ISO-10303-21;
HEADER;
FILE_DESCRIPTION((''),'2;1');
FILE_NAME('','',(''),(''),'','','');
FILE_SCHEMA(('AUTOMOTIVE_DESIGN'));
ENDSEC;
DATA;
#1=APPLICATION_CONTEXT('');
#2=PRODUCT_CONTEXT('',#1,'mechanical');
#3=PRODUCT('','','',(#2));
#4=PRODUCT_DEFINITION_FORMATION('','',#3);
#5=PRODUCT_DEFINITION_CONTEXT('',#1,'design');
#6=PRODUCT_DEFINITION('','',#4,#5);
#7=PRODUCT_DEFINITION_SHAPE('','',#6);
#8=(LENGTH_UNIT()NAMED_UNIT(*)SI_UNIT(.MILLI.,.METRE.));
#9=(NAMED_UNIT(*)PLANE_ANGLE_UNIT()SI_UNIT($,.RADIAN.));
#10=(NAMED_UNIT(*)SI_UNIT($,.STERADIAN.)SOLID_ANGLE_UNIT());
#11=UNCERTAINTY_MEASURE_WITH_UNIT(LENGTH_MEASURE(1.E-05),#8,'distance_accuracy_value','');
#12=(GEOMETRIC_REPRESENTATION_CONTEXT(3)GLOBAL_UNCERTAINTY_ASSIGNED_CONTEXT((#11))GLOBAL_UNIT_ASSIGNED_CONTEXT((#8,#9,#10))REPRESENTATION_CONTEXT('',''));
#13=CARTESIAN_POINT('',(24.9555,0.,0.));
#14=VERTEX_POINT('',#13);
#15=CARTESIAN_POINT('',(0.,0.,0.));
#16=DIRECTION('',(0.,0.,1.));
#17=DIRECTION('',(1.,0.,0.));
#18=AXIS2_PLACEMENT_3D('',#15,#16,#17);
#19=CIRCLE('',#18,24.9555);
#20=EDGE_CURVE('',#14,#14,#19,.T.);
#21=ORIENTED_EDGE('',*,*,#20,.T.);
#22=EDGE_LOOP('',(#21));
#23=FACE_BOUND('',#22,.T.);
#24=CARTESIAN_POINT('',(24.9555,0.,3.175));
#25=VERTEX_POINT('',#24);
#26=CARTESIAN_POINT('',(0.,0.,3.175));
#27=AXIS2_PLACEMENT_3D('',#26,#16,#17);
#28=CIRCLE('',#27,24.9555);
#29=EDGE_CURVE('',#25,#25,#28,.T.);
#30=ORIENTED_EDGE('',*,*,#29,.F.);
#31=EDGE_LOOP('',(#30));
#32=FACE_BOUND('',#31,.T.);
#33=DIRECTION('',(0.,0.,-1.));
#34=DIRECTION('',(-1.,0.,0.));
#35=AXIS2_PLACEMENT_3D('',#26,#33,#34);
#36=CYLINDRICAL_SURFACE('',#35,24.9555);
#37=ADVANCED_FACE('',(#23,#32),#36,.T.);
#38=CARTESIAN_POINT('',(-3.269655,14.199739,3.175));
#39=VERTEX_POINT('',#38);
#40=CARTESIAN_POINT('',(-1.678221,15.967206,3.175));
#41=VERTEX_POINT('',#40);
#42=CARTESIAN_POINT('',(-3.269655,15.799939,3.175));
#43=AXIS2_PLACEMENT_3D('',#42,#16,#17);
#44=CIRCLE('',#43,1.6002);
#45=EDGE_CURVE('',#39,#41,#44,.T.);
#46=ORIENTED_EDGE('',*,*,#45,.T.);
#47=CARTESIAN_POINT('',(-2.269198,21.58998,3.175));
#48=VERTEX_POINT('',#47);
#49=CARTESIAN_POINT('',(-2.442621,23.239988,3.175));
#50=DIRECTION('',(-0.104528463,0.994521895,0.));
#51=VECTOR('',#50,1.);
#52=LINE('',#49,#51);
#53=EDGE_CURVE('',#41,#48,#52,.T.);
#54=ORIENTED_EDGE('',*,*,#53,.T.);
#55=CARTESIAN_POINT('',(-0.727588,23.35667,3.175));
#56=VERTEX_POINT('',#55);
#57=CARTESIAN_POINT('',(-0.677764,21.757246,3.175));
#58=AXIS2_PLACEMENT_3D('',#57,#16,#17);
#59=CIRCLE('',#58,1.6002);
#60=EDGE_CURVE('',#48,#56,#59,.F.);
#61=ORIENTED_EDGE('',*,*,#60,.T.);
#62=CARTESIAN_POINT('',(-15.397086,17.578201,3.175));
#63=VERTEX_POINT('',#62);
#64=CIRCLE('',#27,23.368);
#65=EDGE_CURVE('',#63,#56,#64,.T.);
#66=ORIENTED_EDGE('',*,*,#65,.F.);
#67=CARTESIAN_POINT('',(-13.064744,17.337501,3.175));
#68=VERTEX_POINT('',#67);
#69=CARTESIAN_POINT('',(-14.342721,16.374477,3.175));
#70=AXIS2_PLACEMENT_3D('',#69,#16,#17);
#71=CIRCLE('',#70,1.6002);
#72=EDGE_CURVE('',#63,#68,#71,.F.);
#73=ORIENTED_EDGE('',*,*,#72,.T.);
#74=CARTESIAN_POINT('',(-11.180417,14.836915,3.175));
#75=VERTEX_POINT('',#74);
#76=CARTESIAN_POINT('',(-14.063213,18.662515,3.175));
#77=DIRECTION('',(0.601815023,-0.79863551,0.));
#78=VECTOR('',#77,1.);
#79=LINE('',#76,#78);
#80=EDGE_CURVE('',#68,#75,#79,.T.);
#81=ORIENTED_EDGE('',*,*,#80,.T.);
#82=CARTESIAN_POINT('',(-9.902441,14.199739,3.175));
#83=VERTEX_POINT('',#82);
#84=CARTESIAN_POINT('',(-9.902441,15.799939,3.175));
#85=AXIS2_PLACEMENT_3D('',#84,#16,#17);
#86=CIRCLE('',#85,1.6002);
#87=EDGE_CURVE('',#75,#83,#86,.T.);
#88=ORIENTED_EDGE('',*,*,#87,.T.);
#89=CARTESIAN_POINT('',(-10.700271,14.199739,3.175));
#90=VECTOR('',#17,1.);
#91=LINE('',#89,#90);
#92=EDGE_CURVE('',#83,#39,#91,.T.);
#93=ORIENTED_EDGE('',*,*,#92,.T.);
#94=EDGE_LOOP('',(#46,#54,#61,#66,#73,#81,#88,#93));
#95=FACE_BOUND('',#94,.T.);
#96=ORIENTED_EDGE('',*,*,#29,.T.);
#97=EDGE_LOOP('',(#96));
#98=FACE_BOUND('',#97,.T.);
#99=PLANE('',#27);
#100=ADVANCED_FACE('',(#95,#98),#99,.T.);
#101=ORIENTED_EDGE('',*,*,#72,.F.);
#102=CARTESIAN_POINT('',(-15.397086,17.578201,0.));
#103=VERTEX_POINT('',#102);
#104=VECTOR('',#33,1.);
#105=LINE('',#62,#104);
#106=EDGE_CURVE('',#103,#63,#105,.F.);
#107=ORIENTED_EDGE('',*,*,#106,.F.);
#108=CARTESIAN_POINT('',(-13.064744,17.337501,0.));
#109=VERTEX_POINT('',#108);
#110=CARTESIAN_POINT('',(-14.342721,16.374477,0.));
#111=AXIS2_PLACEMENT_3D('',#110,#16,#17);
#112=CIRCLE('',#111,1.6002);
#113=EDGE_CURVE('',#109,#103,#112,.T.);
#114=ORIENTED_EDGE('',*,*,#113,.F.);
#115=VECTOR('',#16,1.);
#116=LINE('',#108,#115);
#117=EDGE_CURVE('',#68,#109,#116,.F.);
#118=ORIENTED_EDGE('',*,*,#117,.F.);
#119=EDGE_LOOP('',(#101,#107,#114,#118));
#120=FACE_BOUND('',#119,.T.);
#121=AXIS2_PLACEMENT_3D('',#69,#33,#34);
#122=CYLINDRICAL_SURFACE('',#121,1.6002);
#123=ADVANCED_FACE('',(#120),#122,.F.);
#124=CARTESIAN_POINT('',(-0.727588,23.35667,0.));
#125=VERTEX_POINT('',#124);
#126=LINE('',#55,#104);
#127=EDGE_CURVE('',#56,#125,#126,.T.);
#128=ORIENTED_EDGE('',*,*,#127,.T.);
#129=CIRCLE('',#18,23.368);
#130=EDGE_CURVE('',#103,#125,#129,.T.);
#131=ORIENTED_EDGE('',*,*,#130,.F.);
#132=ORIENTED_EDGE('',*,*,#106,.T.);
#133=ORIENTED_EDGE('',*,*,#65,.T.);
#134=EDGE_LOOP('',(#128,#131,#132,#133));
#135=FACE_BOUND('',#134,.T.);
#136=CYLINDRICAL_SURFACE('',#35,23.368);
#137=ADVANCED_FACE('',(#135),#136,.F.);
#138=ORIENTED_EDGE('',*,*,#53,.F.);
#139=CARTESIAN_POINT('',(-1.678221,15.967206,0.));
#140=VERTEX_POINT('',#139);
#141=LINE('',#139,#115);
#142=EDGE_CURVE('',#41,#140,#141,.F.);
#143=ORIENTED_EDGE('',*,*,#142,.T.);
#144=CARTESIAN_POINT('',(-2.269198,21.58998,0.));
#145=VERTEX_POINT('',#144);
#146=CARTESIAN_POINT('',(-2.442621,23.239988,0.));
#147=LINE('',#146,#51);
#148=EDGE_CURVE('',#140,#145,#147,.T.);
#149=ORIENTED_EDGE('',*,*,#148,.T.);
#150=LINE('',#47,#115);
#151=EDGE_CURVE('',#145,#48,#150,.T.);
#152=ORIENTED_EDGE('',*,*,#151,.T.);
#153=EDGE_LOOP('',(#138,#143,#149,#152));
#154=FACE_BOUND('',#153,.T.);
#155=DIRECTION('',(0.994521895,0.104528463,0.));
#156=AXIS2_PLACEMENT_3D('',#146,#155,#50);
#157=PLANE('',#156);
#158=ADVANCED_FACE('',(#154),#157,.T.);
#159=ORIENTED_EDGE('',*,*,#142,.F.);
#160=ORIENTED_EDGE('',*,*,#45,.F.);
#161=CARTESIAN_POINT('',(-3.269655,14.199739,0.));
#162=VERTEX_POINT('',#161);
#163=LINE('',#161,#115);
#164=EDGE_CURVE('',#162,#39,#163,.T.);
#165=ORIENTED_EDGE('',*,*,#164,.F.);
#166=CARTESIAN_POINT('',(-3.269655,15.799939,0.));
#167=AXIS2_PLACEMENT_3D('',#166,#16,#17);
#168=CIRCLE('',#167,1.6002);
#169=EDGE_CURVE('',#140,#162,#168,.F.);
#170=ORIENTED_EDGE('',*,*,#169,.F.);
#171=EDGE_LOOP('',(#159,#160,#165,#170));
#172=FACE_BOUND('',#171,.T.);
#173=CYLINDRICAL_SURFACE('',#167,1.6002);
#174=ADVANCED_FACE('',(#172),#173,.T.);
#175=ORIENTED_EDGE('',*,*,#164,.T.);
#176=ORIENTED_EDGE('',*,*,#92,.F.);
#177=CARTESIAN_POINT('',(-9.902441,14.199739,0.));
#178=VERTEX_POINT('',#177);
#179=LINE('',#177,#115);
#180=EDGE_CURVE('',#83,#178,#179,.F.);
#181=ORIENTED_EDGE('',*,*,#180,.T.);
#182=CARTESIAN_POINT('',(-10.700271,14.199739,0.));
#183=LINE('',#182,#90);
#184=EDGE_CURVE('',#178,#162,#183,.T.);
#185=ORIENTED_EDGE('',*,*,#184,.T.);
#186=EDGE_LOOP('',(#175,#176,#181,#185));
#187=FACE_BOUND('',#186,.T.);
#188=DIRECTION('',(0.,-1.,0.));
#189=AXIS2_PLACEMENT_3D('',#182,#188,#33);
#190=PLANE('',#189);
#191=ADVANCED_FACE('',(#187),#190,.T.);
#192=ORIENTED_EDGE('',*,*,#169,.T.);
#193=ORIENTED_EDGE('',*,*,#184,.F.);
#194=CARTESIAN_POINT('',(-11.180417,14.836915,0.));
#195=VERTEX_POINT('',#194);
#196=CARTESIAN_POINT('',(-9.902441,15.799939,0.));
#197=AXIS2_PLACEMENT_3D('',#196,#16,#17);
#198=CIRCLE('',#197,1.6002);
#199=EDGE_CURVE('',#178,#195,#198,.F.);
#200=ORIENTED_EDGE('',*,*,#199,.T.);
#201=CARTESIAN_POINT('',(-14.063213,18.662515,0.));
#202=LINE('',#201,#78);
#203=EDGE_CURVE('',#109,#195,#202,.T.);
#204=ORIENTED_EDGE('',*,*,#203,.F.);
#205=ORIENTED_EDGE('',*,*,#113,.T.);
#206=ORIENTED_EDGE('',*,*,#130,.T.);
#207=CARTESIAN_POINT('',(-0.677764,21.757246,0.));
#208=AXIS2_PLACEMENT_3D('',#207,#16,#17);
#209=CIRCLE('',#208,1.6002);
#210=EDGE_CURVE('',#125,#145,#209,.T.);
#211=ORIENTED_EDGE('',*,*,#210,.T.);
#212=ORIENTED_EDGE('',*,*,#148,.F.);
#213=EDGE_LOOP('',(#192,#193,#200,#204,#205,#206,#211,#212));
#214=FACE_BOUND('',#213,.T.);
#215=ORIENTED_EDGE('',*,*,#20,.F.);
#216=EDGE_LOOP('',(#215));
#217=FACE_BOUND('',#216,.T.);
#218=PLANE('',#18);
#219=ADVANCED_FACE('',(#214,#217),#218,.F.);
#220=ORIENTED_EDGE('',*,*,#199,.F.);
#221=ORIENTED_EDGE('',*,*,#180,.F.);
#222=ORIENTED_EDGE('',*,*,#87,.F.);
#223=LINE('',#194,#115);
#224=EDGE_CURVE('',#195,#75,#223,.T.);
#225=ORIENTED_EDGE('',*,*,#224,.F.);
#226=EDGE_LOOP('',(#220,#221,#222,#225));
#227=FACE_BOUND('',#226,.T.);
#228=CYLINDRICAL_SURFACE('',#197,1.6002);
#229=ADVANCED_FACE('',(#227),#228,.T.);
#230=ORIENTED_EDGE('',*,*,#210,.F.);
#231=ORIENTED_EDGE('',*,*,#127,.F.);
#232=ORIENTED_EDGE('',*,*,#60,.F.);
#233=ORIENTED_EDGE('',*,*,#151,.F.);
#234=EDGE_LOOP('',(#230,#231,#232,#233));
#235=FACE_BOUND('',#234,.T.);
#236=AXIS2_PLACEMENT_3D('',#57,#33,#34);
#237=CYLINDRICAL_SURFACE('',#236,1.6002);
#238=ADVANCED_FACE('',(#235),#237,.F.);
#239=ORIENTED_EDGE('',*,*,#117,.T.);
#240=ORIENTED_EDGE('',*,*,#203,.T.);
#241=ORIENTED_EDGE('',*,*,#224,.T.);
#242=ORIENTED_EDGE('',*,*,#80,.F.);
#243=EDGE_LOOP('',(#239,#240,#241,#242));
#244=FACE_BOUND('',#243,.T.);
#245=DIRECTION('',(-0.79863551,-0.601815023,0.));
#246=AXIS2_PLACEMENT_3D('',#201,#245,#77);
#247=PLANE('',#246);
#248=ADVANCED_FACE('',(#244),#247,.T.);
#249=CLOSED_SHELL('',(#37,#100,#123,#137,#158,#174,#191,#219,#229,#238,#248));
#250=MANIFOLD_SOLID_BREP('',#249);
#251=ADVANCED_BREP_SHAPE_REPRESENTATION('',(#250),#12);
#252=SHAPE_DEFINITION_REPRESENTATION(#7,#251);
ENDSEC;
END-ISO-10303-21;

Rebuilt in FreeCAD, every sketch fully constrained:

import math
import FreeCAD as App
import Part
import Sketcher

V = App.Vector
Q = App.Units.Quantity


def edges_at(feature, points):
    """Names of the edges that pass closest to the given points."""
    edges = feature.Shape.Edges
    near = lambda p: min(range(len(edges)), key=lambda i: edges[i].distToShape(Part.Vertex(*p))[0])
    return sorted({f"Edge{near(p) + 1}" for p in points})

doc = App.newDocument("Part")
body = doc.addObject("PartDesign::Body", "Body")

sketch1 = body.newObject("Sketcher::SketchObject", "Sketch")
sketch1.AttachmentSupport = (doc.getObject("XY_Plane"), [""])
sketch1.MapMode = "FlatFace"
sketch1.addGeometry(Part.Circle(V(0, 0, 0), V(0, 0, 1), 25), False)
sketch1.addGeometry(Part.Circle(V(0, 0, 0), V(0, 0, 1), 23), False)
sketch1.addConstraint(Sketcher.Constraint("Coincident", 0, 3, -1, 1))
sketch1.addConstraint(Sketcher.Constraint("Coincident", 1, 3, -1, 1))
sketch1.addConstraint(Sketcher.Constraint("Diameter", 1, Q("1.84 in")))
sketch1.addConstraint(Sketcher.Constraint("Diameter", 0, Q("1.965 in")))
pad1 = body.newObject("PartDesign::Pad", "Pad")
pad1.Profile = sketch1
pad1.Length = Q("0.125 in")

sketch2 = body.newObject("Sketcher::SketchObject", "Sketch001")
sketch2.AttachmentSupport = (doc.getObject("XY_Plane"), [""])
sketch2.MapMode = "FlatFace"
sketch2.AttachmentOffset = App.Placement(V(0, 0, 0.125 * 25.4), App.Rotation())
sketch2.addGeometry(Part.LineSegment(V(-14, 19, 0), V(-11, 14, 0)), False)
sketch2.addGeometry(Part.LineSegment(V(-11, 14, 0), V(-1, 14, 0)), False)
sketch2.addGeometry(Part.LineSegment(V(-1, 14, 0), V(-2, 23, 0)), False)
sketch2.addGeometry(Part.ArcOfCircle(Part.Circle(V(0, 0, 0), V(0, 0, 1), 23), math.radians(96), math.radians(127)), False)
sketch2.addConstraint(Sketcher.Constraint("Coincident", 0, 2, 1, 1))
sketch2.addConstraint(Sketcher.Constraint("Coincident", 1, 2, 2, 1))
sketch2.addConstraint(Sketcher.Constraint("Coincident", 2, 2, 3, 1))
sketch2.addConstraint(Sketcher.Constraint("Coincident", 3, 2, 0, 1))
sketch2.addConstraint(Sketcher.Constraint("Horizontal", 1))
sketch2.addConstraint(Sketcher.Constraint("Coincident", 3, 3, -1, 1))
sketch2.addConstraint(Sketcher.Constraint("Radius", 3, Q("0.92 in")))
sketch2.addConstraint(Sketcher.Constraint("Angle", 0, Q("-53 deg")))
sketch2.addConstraint(Sketcher.Constraint("Angle", 2, Q("96 deg")))
sketch2.addConstraint(Sketcher.Constraint("Distance", 0, Q("0.22 in")))
sketch2.addConstraint(Sketcher.Constraint("DistanceX", 1, 1, 1, 2, Q("9.207818 mm")))
sketch2.addConstraint(Sketcher.Constraint("DistanceX", 0, 2, -1, 1, Q("10.700271 mm")))
pad2 = body.newObject("PartDesign::Pad", "Pad001")
pad2.Profile = sketch2
pad2.Length = Q("0.125 in")
pad2.Reversed = True
doc.recompute()

fillet = body.newObject("PartDesign::Fillet", "Fillet")
fillet.Base = (pad2, edges_at(pad2, [
    (-14.063, 18.663, 1.587),
    (-2.443, 23.24, 1.587),
    (-1.492, 14.2, 1.587),
    (-10.7, 14.2, 1.587),
]))
fillet.Radius = Q("0.063 in")

doc.recompute()
